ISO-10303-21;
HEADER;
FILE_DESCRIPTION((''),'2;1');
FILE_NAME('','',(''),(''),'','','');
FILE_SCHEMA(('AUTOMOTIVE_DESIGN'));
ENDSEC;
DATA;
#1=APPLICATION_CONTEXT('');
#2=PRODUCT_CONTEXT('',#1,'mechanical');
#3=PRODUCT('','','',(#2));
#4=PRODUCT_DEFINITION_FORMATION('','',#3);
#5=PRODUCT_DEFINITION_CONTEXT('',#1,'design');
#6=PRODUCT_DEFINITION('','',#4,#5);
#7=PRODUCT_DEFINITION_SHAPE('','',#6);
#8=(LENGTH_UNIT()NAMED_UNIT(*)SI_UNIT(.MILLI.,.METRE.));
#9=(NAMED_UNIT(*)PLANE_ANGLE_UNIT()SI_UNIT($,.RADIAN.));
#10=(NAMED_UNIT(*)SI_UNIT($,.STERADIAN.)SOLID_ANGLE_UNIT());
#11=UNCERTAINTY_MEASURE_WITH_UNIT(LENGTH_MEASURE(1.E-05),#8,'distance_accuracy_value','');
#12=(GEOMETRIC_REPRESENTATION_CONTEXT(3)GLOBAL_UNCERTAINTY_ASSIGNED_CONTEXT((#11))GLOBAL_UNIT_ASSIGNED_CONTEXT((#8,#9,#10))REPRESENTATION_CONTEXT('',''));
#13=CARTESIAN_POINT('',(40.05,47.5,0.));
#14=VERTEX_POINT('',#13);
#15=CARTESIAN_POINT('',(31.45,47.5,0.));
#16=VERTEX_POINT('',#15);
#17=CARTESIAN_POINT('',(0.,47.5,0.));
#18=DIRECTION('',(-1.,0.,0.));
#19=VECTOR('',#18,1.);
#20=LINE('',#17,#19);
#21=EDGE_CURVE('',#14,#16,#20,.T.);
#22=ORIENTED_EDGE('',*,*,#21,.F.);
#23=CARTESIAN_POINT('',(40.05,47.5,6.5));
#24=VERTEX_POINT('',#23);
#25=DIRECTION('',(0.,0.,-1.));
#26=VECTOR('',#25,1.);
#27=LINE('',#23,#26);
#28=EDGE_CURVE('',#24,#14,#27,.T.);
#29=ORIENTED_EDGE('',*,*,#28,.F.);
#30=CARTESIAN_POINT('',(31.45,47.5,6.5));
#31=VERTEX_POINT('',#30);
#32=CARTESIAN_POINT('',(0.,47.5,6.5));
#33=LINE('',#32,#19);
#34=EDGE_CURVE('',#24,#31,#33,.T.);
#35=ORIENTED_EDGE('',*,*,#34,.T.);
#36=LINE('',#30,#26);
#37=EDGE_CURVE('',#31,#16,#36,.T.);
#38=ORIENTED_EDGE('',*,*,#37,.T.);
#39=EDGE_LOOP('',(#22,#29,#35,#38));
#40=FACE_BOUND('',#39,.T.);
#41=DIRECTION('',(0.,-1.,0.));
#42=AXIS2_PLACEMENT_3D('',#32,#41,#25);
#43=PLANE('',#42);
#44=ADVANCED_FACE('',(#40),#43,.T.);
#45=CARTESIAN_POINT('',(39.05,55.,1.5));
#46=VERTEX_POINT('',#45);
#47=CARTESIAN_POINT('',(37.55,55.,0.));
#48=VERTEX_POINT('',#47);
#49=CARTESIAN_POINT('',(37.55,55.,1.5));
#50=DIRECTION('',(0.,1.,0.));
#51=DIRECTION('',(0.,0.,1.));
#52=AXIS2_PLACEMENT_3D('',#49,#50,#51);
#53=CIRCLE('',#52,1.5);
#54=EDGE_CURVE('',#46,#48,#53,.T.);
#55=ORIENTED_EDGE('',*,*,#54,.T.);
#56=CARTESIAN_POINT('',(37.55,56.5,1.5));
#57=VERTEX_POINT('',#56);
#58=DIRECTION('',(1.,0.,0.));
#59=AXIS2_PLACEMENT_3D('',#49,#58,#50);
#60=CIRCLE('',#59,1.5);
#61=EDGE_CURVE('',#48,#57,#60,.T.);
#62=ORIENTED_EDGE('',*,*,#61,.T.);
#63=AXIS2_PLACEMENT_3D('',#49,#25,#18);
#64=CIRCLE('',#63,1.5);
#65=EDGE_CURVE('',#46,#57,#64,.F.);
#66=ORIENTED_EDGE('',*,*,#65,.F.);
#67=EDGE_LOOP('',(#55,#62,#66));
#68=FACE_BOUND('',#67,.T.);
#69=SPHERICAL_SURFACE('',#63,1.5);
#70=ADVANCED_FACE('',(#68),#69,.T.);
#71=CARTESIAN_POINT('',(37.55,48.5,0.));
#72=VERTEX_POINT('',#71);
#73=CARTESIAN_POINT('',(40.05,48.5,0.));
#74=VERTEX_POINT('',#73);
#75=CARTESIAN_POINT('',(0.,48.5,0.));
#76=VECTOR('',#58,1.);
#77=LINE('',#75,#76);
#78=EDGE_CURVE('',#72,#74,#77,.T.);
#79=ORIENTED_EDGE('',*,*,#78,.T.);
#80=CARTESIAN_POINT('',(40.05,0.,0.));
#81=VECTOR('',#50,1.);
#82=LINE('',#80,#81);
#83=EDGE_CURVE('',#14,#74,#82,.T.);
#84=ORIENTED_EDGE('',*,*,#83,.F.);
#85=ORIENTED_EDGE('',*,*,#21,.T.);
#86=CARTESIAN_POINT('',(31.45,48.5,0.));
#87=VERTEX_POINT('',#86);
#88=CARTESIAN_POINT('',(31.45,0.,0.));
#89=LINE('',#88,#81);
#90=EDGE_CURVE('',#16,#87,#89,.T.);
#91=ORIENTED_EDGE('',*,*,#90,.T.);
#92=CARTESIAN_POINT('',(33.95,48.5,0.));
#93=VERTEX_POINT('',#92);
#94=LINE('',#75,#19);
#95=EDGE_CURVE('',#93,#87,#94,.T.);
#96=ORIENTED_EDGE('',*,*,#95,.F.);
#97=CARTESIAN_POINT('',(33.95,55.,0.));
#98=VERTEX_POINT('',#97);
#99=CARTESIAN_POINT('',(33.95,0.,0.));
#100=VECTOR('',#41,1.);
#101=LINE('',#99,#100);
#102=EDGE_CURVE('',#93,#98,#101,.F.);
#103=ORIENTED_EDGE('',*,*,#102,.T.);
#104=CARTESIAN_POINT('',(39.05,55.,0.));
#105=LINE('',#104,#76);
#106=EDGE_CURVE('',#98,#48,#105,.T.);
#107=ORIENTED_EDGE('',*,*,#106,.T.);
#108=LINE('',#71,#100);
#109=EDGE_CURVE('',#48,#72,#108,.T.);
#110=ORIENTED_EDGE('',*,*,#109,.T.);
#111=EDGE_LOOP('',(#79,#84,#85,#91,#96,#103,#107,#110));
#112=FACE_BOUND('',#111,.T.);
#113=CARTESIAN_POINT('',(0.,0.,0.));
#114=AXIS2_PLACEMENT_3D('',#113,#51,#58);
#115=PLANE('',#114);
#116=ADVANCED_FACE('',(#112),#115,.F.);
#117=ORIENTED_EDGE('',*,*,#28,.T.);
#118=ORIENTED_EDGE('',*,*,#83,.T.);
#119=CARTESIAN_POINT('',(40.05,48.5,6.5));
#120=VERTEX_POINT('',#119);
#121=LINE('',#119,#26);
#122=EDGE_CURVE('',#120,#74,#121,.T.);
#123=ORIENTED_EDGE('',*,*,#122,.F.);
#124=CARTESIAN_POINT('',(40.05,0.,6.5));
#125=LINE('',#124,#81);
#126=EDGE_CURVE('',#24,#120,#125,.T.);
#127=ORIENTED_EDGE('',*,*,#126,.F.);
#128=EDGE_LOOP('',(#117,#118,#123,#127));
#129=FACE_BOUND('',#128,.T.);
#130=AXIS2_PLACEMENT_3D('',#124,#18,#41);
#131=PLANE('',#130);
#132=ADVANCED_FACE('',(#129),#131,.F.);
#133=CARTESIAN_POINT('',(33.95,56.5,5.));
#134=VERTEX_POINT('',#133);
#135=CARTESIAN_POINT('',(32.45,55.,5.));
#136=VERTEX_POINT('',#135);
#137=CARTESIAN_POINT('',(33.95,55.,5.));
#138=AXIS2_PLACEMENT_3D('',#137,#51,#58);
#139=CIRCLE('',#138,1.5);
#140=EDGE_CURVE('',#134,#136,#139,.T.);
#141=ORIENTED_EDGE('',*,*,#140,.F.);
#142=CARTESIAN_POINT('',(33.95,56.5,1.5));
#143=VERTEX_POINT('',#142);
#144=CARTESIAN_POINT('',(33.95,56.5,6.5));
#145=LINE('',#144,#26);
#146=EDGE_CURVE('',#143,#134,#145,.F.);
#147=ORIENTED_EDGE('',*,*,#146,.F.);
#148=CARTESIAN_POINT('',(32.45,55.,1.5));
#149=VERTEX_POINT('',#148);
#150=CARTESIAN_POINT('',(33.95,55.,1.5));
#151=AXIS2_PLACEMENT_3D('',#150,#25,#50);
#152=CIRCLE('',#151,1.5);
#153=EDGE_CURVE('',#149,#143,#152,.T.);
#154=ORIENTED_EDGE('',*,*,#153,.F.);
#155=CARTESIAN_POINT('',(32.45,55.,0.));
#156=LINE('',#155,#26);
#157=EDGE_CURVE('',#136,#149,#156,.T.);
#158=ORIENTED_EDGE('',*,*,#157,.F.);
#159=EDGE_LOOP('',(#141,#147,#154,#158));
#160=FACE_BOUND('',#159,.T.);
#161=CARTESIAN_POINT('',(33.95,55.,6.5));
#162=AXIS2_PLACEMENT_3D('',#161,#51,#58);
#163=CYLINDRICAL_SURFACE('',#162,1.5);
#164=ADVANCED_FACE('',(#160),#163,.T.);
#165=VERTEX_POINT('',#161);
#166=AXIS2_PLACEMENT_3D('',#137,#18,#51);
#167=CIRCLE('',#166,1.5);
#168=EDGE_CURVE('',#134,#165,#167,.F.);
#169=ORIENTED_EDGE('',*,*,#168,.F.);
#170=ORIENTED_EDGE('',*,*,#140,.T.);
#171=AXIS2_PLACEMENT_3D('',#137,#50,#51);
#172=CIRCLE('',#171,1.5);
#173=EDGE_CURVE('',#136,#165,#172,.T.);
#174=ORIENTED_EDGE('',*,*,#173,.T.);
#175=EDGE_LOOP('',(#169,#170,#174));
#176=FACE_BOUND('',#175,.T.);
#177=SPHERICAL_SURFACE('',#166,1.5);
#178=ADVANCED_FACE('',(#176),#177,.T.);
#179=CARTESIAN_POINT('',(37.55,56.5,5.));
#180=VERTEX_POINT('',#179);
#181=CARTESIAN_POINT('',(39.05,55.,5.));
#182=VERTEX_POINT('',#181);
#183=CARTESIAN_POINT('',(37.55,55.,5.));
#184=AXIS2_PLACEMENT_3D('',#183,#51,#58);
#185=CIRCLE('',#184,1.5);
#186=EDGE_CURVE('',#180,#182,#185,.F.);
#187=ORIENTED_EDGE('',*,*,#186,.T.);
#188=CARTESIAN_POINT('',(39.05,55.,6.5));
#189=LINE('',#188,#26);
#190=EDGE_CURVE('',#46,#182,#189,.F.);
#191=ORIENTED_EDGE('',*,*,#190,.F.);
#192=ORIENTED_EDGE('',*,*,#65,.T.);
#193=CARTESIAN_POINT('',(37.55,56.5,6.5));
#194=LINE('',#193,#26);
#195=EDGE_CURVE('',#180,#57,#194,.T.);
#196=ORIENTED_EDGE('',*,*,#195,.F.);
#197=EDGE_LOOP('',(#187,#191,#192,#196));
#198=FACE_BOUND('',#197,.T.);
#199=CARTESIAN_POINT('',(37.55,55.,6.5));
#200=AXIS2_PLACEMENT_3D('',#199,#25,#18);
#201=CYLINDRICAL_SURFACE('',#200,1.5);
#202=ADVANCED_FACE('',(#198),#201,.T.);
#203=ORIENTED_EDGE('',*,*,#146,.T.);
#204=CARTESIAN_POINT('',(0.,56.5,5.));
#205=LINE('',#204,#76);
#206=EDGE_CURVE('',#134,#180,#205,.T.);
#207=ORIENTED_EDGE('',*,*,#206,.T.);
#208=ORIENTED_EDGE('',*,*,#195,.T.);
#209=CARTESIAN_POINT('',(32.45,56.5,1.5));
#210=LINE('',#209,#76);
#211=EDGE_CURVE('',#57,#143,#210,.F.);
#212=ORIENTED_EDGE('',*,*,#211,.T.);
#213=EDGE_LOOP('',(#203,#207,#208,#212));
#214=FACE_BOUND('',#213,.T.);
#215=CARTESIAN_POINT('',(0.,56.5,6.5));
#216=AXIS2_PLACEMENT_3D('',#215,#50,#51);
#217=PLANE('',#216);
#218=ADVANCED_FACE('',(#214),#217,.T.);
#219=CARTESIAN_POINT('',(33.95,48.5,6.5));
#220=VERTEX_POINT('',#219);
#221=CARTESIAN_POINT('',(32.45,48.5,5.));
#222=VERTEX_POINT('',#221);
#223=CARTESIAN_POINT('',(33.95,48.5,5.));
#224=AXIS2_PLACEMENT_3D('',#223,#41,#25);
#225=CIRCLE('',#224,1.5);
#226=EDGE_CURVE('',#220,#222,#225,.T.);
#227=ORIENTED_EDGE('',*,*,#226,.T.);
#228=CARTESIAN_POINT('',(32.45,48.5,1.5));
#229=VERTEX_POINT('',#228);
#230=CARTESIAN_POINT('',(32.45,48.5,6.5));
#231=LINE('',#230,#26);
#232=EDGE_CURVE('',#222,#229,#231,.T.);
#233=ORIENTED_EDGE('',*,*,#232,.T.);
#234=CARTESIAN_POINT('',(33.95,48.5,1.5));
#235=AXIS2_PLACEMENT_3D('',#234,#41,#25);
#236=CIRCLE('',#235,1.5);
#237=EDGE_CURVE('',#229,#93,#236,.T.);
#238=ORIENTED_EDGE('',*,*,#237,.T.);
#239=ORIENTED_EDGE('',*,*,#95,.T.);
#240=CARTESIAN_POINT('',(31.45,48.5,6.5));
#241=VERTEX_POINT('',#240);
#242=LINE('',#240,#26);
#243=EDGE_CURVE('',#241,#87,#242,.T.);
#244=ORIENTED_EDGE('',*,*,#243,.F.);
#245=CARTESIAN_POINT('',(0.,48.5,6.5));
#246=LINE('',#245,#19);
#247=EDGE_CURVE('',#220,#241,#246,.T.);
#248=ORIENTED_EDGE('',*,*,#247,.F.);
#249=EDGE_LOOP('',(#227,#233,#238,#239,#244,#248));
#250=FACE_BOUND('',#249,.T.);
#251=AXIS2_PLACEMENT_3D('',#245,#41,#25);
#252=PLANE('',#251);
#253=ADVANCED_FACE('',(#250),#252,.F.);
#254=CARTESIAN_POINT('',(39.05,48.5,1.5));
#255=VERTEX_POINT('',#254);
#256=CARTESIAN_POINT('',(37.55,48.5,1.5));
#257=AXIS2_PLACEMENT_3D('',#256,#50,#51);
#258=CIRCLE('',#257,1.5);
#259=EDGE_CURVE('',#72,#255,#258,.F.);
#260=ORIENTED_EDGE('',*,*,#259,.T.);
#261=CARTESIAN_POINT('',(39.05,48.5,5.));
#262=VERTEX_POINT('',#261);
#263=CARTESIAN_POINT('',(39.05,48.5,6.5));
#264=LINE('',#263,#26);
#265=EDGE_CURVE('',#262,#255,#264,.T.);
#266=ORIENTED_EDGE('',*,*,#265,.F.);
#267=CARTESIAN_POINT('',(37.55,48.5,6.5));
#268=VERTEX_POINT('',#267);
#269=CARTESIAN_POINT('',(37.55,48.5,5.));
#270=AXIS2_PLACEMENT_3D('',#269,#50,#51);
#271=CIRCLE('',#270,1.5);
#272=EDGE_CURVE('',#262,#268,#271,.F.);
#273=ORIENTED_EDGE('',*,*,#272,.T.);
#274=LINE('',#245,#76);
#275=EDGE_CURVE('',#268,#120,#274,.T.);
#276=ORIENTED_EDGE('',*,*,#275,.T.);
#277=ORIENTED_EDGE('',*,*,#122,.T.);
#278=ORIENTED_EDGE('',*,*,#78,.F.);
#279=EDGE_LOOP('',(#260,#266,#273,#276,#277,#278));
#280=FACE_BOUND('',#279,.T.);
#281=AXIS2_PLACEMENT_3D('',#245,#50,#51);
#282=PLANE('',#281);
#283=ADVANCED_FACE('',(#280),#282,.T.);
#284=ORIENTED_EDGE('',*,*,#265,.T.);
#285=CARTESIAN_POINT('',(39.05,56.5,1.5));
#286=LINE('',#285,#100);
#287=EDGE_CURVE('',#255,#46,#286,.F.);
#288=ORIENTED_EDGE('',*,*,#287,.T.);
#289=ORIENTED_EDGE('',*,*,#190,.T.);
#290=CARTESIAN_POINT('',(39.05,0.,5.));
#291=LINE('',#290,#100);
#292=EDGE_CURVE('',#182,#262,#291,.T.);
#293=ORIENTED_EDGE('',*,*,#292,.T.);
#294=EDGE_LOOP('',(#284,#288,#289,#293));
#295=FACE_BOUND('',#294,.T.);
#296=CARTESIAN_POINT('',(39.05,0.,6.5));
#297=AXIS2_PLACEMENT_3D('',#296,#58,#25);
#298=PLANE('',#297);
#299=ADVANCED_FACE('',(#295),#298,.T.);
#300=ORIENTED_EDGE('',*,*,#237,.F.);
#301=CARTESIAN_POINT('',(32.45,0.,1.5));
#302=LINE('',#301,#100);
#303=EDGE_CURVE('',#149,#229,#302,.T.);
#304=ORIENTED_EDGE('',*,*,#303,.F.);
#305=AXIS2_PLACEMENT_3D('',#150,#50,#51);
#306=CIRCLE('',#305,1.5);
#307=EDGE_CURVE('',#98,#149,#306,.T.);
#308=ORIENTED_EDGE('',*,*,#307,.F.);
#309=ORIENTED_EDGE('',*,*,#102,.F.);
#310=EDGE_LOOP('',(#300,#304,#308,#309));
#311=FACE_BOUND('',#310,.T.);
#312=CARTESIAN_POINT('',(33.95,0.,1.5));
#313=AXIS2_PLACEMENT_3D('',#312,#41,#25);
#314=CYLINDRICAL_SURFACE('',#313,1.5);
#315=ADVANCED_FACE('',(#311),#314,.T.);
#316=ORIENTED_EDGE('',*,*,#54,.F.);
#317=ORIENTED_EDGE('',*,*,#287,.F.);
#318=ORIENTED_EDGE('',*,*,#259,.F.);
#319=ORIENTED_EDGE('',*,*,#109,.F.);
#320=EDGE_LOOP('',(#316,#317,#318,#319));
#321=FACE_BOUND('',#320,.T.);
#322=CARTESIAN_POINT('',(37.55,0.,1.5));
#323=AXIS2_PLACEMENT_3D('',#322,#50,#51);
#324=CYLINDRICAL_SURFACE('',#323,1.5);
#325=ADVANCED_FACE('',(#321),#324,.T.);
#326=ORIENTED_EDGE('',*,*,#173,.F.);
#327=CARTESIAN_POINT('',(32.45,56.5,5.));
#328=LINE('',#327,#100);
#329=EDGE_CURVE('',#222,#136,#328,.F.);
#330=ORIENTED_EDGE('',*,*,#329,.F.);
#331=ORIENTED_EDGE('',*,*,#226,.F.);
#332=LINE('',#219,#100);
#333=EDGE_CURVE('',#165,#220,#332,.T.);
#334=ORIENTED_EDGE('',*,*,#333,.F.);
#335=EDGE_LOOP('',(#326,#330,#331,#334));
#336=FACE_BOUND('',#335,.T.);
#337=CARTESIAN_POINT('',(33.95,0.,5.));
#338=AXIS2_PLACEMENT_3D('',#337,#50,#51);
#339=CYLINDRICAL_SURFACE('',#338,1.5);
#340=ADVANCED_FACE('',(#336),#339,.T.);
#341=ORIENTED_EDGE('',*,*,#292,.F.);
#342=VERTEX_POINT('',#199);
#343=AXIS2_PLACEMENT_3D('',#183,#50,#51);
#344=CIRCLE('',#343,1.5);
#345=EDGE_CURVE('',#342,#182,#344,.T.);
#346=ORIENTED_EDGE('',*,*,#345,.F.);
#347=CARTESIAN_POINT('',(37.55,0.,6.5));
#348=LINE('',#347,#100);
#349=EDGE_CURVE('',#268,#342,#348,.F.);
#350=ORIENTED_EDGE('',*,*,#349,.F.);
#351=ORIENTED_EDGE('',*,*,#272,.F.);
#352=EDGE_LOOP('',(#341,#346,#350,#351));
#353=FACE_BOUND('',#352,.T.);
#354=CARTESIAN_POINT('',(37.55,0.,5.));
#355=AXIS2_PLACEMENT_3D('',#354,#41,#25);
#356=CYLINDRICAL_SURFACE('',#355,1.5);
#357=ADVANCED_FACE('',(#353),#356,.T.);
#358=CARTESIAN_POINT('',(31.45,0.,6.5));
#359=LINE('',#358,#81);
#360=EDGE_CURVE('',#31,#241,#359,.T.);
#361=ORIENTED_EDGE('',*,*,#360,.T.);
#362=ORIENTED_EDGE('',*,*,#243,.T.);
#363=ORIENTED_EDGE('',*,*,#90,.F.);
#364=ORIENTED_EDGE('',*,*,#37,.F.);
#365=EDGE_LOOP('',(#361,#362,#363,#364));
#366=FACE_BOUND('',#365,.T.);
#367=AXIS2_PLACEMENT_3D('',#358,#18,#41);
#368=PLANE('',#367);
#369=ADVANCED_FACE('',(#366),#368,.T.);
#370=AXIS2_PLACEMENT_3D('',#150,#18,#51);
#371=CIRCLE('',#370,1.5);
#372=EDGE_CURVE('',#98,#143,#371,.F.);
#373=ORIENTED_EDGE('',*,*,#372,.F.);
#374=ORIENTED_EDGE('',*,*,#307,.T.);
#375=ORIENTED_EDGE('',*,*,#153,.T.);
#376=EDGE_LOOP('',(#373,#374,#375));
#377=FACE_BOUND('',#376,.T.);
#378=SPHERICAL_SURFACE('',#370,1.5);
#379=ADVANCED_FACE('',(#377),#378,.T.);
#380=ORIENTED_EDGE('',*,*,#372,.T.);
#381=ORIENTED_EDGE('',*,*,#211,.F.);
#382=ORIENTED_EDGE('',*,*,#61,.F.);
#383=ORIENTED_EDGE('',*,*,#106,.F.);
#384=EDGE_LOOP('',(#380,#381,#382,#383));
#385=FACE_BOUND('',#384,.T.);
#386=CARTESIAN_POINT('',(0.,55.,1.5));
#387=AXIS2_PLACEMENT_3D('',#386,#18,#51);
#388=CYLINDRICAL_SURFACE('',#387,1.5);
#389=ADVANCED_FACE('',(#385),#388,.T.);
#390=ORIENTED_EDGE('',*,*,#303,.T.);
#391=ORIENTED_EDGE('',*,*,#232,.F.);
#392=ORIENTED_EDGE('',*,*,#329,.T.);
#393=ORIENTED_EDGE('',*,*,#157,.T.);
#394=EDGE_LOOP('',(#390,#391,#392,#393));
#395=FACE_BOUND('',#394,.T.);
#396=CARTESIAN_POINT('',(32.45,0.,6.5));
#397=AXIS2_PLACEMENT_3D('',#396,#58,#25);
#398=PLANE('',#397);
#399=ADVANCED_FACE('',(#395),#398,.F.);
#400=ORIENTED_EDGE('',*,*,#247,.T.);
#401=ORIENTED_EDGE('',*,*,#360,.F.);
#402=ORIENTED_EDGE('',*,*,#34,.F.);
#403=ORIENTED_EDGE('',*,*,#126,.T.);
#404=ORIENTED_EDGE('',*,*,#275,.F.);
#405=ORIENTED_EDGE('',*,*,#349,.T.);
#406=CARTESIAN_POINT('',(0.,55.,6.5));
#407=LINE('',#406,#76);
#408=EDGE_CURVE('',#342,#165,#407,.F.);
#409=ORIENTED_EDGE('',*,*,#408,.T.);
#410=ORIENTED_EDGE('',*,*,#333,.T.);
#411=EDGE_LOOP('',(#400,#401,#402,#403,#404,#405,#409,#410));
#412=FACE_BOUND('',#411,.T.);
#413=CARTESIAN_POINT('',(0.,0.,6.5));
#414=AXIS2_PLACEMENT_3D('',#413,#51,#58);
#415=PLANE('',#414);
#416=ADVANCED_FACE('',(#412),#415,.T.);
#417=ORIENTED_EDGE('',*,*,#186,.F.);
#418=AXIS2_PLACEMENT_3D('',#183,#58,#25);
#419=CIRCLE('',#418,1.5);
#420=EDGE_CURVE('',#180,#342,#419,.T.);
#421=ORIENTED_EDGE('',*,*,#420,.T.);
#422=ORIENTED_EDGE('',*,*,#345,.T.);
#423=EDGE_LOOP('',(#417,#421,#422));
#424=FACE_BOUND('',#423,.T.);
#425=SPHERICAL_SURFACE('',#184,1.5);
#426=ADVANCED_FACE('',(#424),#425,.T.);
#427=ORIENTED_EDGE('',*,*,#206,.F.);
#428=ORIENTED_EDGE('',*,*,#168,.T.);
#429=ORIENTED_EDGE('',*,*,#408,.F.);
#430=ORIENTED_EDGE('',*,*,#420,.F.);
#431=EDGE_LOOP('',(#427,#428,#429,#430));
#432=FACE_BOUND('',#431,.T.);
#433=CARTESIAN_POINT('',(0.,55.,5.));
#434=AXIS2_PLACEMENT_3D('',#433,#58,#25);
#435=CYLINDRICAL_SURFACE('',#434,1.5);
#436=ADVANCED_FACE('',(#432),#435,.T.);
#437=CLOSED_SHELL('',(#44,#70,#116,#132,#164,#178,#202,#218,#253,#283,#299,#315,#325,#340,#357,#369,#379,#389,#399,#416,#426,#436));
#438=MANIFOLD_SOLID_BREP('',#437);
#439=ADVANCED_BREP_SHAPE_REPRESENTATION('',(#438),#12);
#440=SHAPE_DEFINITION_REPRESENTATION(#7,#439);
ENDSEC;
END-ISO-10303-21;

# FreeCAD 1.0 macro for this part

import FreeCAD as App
import Part
import Sketcher
from FreeCAD import Vector
Q = App.Units.Quantity


def edges_at(feature, points):
    """Names of the edges that pass closest to the given points."""
    edges = feature.Shape.Edges
    near = lambda p: min(range(len(edges)), key=lambda i: edges[i].distToShape(Part.Vertex(*p))[0])
    return sorted({f"Edge{near(p) + 1}" for p in points})

doc = App.newDocument("Part")
params = doc.addObject("Spreadsheet::Sheet", "Params")
for row, (alias, value) in enumerate([
    ("sketch1_width", "1 mm"),
    ("sketch1_height", "8 mm"),
    ("sketch1_width2", "8.6 mm"),
    ("pad1_length", "6.5 mm"),
    ("fillet_radius", "1.5 mm"),
], start=1):
    params.set(f"A{row}", alias)
    params.set(f"B{row}", "=" + value)
    params.setAlias(f"B{row}", alias)

body = doc.addObject("PartDesign::Body", "Body")

# Sketch on XY plane
sketch1 = body.newObject("Sketcher::SketchObject", "Sketch")
sketch1.AttachmentSupport = (doc.getObject("XY_Plane"), [""])
sketch1.MapMode = "FlatFace"
sketch1.addGeometry(Part.LineSegment(Vector(31.4, 48.5, 0), Vector(31.4, 47.5, 0)), False)
sketch1.addGeometry(Part.LineSegment(Vector(31.4, 47.5, 0), Vector(40, 47.5, 0)), False)
sketch1.addGeometry(Part.LineSegment(Vector(40, 47.5, 0), Vector(40, 48.5, 0)), False)
sketch1.addGeometry(Part.LineSegment(Vector(40, 48.5, 0), Vector(39, 48.5, 0)), False)
sketch1.addGeometry(Part.LineSegment(Vector(39, 48.5, 0), Vector(39, 56.5, 0)), False)
sketch1.addGeometry(Part.LineSegment(Vector(39, 56.5, 0), Vector(32.5, 56.5, 0)), False)
sketch1.addGeometry(Part.LineSegment(Vector(32.5, 56.5, 0), Vector(32.5, 48.5, 0)), False)
sketch1.addGeometry(Part.LineSegment(Vector(32.5, 48.5, 0), Vector(31.4, 48.5, 0)), False)
sketch1.addConstraint(Sketcher.Constraint("Coincident", 0, 2, 1, 1))
sketch1.addConstraint(Sketcher.Constraint("Coincident", 1, 2, 2, 1))
sketch1.addConstraint(Sketcher.Constraint("Coincident", 2, 2, 3, 1))
sketch1.addConstraint(Sketcher.Constraint("Coincident", 3, 2, 4, 1))
sketch1.addConstraint(Sketcher.Constraint("Coincident", 4, 2, 5, 1))
sketch1.addConstraint(Sketcher.Constraint("Coincident", 5, 2, 6, 1))
sketch1.addConstraint(Sketcher.Constraint("Coincident", 6, 2, 7, 1))
sketch1.addConstraint(Sketcher.Constraint("Coincident", 7, 2, 0, 1))
sketch1.addConstraint(Sketcher.Constraint("Vertical", 0))
sketch1.addConstraint(Sketcher.Constraint("Horizontal", 1))
sketch1.addConstraint(Sketcher.Constraint("Vertical", 2))
sketch1.addConstraint(Sketcher.Constraint("Horizontal", 3))
sketch1.addConstraint(Sketcher.Constraint("Vertical", 4))
sketch1.addConstraint(Sketcher.Constraint("Horizontal", 5))
sketch1.addConstraint(Sketcher.Constraint("Vertical", 6))
sketch1.addConstraint(Sketcher.Constraint("Horizontal", 7))
sketch1.addConstraint(Sketcher.Constraint("Horizontal", 3, 2, 6, 2))
sketch1.addConstraint(Sketcher.Constraint("Equal", 3, 7))
sketch1.addConstraint(Sketcher.Constraint("Equal", 7, 0))
sketch1.addConstraint(Sketcher.Constraint("DistanceX", 3, 2, 3, 1, Q("1 mm")))
sketch1.addConstraint(Sketcher.Constraint("DistanceY", 4, 1, 4, 2, Q("8 mm")))
sketch1.addConstraint(Sketcher.Constraint("DistanceX", 1, 1, 1, 2, Q("8.6 mm")))
sketch1.addConstraint(Sketcher.Constraint("DistanceY", -1, 1, 0, 2, Q("47.5 mm")))
sketch1.addConstraint(Sketcher.Constraint("DistanceX", -1, 1, 0, 2, Q("31.45 mm")))
sketch1.setExpression("Constraints[19]", "Params.sketch1_width")
sketch1.setExpression("Constraints[20]", "Params.sketch1_height")
sketch1.setExpression("Constraints[21]", "Params.sketch1_width2")
pad1 = body.newObject("PartDesign::Pad", "Pad")
pad1.Profile = sketch1
pad1.setExpression("Length", "Params.pad1_length")
doc.recompute()

fillet = body.newObject("PartDesign::Fillet", "Fillet")
fillet.Base = (pad1, edges_at(pad1, [
    (32.45, 52.5, 0),
    (35.75, 56.5, 0),
    (39.05, 52.5, 0),
    (32.45, 56.5, 3.25),
    (39.05, 56.5, 3.25),
    (39.05, 52.5, 6.5),
    (35.75, 56.5, 6.5),
    (32.45, 52.5, 6.5),
]))
fillet.setExpression("Radius", "Params.fillet_radius")

doc.recompute()
